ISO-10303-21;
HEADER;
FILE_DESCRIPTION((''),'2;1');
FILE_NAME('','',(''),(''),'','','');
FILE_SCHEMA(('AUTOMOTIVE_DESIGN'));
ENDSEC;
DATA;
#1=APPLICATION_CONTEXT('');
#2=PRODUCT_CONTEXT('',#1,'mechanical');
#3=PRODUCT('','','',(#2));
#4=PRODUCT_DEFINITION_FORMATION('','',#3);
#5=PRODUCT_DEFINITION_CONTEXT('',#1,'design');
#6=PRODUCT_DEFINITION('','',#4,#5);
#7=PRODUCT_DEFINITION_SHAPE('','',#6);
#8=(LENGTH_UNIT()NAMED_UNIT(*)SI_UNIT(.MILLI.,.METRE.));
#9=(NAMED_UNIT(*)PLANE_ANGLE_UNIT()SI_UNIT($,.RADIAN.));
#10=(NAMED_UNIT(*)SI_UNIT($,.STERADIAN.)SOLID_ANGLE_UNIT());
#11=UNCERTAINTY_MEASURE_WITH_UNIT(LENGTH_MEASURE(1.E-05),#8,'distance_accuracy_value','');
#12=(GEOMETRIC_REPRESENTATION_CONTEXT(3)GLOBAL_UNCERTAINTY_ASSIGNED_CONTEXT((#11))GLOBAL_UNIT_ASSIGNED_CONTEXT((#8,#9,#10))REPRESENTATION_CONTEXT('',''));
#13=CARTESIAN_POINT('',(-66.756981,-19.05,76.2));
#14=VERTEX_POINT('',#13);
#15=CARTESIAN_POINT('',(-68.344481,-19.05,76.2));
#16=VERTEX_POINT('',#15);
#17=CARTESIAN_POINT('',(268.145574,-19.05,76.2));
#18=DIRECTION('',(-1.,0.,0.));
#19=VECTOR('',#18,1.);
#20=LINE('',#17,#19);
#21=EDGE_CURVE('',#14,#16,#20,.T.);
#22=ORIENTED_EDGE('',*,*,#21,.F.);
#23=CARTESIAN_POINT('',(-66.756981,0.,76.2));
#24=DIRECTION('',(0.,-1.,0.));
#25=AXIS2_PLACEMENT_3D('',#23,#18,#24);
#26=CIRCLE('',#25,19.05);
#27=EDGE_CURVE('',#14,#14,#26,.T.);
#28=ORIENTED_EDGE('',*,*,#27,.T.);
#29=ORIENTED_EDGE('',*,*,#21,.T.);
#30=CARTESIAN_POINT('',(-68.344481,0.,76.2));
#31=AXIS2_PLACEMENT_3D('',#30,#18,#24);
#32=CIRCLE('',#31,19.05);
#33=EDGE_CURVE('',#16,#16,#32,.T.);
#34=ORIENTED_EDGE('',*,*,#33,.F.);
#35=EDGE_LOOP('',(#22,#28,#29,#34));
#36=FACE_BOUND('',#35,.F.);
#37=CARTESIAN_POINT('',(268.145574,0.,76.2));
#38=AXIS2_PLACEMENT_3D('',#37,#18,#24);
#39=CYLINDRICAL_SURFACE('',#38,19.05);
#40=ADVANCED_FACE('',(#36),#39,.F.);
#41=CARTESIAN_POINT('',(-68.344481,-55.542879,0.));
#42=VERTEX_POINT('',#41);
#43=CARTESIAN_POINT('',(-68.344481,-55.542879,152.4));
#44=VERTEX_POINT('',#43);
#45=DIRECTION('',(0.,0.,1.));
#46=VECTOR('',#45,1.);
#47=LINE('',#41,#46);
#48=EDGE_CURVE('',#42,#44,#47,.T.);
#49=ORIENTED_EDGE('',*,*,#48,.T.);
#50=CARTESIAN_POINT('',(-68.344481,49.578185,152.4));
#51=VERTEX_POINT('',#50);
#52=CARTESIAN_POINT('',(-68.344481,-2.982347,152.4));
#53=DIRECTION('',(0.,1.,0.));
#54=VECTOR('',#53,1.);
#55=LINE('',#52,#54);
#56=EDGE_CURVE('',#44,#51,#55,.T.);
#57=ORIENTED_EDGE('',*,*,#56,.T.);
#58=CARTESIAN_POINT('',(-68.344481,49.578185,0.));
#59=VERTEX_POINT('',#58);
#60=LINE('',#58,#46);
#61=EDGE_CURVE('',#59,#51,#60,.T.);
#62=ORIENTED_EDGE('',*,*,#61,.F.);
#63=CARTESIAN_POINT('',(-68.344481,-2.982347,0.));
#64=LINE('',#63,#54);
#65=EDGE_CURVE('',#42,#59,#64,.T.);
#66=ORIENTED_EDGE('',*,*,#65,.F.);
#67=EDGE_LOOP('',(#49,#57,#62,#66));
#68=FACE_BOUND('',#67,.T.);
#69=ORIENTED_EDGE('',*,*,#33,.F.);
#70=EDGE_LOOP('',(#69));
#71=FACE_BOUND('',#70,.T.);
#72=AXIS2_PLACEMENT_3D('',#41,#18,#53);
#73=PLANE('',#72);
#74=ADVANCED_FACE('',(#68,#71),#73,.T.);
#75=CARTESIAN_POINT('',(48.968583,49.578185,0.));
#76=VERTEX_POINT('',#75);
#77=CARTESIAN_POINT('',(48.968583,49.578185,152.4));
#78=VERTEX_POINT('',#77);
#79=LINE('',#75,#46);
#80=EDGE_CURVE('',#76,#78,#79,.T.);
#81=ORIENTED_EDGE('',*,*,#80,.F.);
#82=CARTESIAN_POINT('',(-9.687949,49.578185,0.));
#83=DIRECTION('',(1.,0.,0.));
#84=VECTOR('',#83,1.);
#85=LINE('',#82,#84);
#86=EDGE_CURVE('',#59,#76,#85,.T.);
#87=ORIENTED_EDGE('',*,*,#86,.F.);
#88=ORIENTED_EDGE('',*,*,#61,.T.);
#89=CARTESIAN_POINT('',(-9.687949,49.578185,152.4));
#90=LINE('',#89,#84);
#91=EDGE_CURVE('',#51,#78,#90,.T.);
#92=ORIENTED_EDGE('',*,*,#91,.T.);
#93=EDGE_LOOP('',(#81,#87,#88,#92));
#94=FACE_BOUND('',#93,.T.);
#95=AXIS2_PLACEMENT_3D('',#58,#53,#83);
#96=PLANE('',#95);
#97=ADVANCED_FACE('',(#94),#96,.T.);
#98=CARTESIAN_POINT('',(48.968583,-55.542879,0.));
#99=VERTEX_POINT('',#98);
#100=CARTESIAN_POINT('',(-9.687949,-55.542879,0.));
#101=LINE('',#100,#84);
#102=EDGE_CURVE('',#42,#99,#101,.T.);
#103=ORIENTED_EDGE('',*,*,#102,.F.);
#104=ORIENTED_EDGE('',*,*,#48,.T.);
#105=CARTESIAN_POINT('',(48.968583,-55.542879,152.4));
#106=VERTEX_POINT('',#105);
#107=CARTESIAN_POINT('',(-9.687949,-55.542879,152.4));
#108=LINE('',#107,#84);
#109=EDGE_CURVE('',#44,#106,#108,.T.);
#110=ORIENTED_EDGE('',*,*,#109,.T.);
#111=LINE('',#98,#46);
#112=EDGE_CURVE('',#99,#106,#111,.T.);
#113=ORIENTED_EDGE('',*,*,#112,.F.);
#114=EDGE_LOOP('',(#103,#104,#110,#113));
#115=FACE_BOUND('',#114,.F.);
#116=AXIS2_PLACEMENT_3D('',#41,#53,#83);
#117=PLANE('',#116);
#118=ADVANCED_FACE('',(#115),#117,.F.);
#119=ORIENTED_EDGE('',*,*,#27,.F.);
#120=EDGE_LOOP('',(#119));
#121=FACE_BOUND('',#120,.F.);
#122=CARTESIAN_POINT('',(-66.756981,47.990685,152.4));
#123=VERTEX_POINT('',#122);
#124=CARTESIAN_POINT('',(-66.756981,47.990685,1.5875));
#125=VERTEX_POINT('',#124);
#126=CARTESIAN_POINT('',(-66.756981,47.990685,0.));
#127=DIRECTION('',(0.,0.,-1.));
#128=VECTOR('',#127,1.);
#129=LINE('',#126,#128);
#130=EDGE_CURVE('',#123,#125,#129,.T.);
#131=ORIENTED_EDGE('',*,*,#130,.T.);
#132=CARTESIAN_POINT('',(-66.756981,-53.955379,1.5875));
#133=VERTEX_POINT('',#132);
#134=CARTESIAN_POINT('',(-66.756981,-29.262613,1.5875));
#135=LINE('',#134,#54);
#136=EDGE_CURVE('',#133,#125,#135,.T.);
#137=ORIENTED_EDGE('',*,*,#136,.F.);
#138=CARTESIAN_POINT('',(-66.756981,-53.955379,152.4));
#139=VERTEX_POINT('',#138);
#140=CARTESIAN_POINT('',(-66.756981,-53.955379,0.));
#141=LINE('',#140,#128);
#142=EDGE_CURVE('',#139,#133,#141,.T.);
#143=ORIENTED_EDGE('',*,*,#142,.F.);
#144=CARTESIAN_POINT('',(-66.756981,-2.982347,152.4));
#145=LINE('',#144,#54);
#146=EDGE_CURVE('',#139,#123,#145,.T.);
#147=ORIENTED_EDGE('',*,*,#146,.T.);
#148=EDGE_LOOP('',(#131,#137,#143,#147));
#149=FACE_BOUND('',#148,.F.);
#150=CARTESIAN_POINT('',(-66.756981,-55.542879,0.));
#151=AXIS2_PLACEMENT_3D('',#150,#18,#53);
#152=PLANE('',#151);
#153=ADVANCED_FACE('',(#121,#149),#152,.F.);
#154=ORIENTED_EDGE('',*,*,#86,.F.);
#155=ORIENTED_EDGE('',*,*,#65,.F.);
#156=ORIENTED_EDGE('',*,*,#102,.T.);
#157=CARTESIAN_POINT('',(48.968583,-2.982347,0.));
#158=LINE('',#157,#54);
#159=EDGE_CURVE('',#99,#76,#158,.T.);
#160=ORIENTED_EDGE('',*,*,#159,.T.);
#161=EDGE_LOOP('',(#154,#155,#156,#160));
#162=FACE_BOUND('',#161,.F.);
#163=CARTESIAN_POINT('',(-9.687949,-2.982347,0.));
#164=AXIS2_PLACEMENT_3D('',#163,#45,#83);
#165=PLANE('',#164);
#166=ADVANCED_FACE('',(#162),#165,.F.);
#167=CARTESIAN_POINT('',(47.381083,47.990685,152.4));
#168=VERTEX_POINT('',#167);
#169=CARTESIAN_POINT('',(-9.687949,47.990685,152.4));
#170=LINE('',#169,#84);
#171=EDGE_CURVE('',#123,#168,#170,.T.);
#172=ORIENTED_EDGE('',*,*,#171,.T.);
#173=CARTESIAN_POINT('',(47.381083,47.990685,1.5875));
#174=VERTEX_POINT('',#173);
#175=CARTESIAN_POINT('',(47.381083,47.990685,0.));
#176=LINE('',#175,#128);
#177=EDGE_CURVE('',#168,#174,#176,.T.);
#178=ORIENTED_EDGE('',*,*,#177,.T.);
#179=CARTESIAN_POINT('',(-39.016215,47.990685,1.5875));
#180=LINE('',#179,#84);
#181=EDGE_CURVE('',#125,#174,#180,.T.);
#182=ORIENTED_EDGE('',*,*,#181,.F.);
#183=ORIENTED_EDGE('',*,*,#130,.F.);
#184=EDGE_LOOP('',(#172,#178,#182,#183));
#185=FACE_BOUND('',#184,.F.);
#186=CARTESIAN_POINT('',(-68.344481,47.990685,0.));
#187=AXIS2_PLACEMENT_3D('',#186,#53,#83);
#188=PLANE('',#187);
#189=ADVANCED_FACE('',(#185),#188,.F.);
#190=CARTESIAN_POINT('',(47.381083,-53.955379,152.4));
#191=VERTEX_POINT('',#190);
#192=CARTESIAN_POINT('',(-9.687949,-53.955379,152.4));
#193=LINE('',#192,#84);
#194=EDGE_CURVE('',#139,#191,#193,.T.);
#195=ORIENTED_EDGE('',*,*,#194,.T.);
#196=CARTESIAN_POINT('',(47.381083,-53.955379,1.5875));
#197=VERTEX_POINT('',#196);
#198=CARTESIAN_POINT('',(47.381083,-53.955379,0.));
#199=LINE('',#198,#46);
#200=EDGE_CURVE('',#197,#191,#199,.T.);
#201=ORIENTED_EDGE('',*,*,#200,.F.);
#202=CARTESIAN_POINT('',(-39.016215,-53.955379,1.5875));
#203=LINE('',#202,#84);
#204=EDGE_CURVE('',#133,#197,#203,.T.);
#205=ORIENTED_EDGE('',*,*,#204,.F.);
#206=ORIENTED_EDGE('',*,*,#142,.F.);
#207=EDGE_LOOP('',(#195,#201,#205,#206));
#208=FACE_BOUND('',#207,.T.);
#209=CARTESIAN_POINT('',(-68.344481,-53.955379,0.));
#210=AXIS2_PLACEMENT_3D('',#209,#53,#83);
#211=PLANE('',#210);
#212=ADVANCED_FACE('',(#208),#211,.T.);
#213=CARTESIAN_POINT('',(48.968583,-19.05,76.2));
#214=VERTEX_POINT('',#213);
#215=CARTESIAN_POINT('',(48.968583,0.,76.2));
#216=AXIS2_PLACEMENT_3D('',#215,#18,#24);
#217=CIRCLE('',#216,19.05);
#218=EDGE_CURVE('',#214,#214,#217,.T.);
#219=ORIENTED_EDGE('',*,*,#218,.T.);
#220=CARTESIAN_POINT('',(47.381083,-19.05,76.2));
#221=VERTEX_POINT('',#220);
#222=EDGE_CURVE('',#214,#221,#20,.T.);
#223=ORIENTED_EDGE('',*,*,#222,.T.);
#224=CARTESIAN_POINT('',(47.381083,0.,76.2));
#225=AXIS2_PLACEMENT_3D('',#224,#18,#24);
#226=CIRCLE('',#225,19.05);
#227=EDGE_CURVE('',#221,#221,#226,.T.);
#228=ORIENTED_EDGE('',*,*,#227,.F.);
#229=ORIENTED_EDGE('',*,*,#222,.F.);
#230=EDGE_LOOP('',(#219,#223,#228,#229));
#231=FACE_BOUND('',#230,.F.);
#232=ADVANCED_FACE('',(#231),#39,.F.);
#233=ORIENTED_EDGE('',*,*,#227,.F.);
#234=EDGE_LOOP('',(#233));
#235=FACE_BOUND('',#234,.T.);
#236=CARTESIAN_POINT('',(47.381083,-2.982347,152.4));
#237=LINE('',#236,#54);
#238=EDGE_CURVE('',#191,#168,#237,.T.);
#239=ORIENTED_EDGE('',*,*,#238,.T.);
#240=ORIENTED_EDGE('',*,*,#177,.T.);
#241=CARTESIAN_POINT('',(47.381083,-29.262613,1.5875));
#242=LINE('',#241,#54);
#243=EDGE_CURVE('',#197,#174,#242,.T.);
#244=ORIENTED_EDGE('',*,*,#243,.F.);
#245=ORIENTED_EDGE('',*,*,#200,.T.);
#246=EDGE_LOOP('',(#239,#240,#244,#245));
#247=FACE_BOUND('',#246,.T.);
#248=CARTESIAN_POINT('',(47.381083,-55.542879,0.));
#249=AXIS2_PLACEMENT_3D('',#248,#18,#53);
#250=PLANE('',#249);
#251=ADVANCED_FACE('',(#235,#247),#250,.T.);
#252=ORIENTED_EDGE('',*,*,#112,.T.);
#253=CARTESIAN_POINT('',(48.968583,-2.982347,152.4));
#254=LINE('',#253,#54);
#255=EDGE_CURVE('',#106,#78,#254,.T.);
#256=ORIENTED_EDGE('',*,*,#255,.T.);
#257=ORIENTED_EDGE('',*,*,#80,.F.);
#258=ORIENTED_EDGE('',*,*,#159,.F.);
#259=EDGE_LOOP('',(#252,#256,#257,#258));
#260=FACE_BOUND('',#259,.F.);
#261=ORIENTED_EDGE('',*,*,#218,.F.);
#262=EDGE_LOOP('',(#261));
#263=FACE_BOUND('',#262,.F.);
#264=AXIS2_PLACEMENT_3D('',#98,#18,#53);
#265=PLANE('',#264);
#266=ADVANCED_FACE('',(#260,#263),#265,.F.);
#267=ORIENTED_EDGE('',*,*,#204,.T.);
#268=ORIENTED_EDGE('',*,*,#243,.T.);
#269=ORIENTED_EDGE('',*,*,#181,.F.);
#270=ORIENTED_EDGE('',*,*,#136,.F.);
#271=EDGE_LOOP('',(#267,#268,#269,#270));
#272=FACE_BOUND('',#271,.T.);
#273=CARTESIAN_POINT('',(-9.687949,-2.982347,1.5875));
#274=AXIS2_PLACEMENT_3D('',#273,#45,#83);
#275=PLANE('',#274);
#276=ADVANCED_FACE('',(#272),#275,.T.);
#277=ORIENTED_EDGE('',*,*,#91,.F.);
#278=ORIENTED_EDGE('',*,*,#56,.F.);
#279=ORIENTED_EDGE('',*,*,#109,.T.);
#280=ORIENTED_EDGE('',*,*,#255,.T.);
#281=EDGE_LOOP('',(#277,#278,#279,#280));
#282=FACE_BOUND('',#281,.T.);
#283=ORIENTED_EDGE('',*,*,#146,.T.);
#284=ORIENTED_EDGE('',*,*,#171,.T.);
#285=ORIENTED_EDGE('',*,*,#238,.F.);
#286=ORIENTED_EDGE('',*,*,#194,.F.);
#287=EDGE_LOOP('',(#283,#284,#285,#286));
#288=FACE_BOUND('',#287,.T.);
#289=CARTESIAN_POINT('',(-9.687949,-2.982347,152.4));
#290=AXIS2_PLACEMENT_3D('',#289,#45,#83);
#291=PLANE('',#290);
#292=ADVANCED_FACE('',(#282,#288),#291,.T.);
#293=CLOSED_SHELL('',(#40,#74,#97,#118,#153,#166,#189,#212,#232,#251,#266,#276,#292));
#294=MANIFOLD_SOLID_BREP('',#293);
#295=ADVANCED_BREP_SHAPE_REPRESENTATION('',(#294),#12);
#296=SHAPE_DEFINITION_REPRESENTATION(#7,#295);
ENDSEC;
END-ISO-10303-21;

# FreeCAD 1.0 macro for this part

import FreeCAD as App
import Part
import Sketcher
from FreeCAD import Vector
Q = App.Units.Quantity


def faces_at(feature, points):
    """Names of the faces that lie closest to the given points."""
    faces = feature.Shape.Faces
    near = lambda p: min(range(len(faces)), key=lambda i: faces[i].distToShape(Part.Vertex(*p))[0])
    return sorted({f"Face{near(p) + 1}" for p in points})

doc = App.newDocument("Part")
body = doc.addObject("PartDesign::Body", "Body")

sketch1 = body.newObject("Sketcher::SketchObject", "Sketch")
sketch1.AttachmentSupport = (doc.getObject("XY_Plane"), [""])
sketch1.MapMode = "FlatFace"
sketch1.addGeometry([
    Part.LineSegment(Vector(-68.344481, 49.578185, 0), Vector(-68.344481, -55.542879, 0)),
    Part.LineSegment(Vector(-68.344481, -55.542879, 0), Vector(48.968583, -55.542879, 0)),
    Part.LineSegment(Vector(48.968583, -55.542879, 0), Vector(48.968583, 49.578185, 0)),
    Part.LineSegment(Vector(48.968583, 49.578185, 0), Vector(-68.344481, 49.578185, 0)),
], False)
sketch1.addConstraint([
    Sketcher.Constraint("Coincident", 0, 2, 1, 1),
    Sketcher.Constraint("Coincident", 1, 2, 2, 1),
    Sketcher.Constraint("Coincident", 2, 2, 3, 1),
    Sketcher.Constraint("Coincident", 3, 2, 0, 1),
    Sketcher.Constraint("Vertical", 0),
    Sketcher.Constraint("Horizontal", 1),
    Sketcher.Constraint("Vertical", 2),
    Sketcher.Constraint("Horizontal", 3),
    Sketcher.Constraint("DistanceX", 1, 1, 1, 2, Q("117.313064 mm")),
    Sketcher.Constraint("DistanceY", 0, 2, 0, 1, Q("105.121065 mm")),
    Sketcher.Constraint("DistanceX", 0, 2, -1, 1, Q("68.344481 mm")),
    Sketcher.Constraint("DistanceY", 0, 2, -1, 1, Q("55.542879 mm")),
])
pad1 = body.newObject("PartDesign::Pad", "Pad")
pad1.Profile = sketch1
pad1.Length = Q("6 in")
doc.recompute()

thickness = body.newObject("PartDesign::Thickness", "Thickness")
thickness.Base = (pad1, faces_at(pad1, [(-9.688, -2.982, 152.4)]))
thickness.Value = Q("0.0625 in")
thickness.Reversed = True
thickness.Join = "Arc"

sketch2 = body.newObject("Sketcher::SketchObject", "Sketch001")
sketch2.AttachmentSupport = (doc.getObject("YZ_Plane"), [""])
sketch2.MapMode = "FlatFace"
sketch2.AttachmentOffset = App.Placement(Vector(0, 0, 48.968583), App.Rotation())
sketch2.addGeometry(Part.Circle(Vector(0, 76.2, 0), Vector(0, 0, 1), 19.05), False)
sketch2.addConstraint([
    Sketcher.Constraint("PointOnObject", 0, 3, -2),
    Sketcher.Constraint("Diameter", 0, Q("1.5 in")),
    Sketcher.Constraint("DistanceY", -1, 1, 0, 3, Q("3 in")),
])
doc.recompute()
hole = body.newObject("PartDesign::Hole", "Hole")
hole.Profile = sketch2
hole.ThreadType = "None"
hole.Diameter = Q("1.5 in")
hole.DepthType = "ThroughAll"

doc.recompute()
